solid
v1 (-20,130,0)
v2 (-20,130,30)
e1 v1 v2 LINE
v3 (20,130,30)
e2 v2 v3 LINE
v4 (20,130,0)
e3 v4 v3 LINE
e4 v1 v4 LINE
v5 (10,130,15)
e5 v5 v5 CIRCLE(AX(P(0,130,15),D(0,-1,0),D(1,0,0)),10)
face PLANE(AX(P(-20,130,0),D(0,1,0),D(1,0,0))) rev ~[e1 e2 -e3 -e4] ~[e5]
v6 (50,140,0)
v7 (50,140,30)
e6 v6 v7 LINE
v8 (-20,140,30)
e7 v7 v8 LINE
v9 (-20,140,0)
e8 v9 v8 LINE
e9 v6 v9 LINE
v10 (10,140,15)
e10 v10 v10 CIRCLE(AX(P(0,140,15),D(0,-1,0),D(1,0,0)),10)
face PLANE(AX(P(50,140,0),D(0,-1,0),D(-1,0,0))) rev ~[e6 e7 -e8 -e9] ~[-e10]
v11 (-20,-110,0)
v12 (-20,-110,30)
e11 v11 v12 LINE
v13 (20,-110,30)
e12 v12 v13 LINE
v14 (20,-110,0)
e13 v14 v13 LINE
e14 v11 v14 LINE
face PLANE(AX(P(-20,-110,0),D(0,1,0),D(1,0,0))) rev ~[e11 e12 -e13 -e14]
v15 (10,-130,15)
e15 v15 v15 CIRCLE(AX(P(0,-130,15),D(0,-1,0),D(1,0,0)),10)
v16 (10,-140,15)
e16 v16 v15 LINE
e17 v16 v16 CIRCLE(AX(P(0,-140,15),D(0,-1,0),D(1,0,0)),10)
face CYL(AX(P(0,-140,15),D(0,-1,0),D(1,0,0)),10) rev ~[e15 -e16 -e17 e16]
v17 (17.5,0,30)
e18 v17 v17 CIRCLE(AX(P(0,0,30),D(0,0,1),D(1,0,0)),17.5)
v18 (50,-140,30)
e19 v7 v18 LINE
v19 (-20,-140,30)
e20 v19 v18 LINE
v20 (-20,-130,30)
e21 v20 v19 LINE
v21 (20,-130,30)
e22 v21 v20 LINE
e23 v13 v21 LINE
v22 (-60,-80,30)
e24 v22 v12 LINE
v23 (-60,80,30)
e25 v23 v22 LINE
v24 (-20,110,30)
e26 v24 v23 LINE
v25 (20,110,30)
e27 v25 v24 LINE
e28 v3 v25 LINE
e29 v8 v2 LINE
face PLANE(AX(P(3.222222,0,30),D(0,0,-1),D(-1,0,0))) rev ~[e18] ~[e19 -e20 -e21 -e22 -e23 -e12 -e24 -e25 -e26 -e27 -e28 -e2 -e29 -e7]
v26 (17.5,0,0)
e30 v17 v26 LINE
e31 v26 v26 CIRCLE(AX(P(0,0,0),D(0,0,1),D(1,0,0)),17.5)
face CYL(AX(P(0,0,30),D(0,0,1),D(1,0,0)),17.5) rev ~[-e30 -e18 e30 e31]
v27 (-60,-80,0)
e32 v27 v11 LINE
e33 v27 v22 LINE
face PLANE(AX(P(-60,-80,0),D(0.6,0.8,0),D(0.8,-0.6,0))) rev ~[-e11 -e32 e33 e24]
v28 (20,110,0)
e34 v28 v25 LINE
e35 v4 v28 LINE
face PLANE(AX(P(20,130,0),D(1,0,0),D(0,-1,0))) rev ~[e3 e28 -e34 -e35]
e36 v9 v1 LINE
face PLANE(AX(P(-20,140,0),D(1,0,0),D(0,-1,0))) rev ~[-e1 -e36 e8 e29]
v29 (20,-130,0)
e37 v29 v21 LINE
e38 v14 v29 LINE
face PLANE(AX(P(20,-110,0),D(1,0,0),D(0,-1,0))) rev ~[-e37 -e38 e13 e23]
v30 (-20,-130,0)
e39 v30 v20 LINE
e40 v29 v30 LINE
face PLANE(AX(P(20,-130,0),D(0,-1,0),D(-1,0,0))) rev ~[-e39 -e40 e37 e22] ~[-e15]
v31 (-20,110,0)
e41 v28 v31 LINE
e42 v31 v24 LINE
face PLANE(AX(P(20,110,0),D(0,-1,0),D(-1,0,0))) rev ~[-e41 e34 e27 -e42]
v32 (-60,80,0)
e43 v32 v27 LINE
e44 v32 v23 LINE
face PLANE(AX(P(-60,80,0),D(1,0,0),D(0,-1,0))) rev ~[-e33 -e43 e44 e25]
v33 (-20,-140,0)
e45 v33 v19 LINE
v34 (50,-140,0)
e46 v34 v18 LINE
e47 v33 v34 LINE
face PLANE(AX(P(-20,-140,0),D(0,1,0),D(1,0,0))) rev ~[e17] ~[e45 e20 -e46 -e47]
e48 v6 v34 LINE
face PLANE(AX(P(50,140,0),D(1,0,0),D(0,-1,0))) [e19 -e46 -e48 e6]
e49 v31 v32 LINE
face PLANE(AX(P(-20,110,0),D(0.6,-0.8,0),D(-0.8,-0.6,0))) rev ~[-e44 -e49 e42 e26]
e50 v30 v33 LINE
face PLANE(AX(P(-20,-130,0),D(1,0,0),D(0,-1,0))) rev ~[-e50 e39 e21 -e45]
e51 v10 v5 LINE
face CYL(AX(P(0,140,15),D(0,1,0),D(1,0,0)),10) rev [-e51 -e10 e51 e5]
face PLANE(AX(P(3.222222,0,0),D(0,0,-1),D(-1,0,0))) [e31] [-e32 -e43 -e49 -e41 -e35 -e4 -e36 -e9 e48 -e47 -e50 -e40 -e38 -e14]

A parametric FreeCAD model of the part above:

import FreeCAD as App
import Part
import Sketcher
from FreeCAD import Vector

doc = App.newDocument("Part")
body = doc.addObject("PartDesign::Body", "Body")

sketch1 = body.newObject("Sketcher::SketchObject", "Sketch")
sketch1.AttachmentSupport = (doc.getObject("XY_Plane"), [""])
sketch1.MapMode = "FlatFace"
sketch1.addGeometry(Part.LineSegment(Vector(50, -140, 0), Vector(50, 140, 0)), False)
sketch1.addGeometry(Part.LineSegment(Vector(50, 140, 0), Vector(-20, 140, 0)), False)
sketch1.addGeometry(Part.LineSegment(Vector(-20, 140, 0), Vector(-20, 130, 0)), False)
sketch1.addGeometry(Part.LineSegment(Vector(-20, 130, 0), Vector(20, 130, 0)), False)
sketch1.addGeometry(Part.LineSegment(Vector(20, 130, 0), Vector(20, 110, 0)), False)
sketch1.addGeometry(Part.LineSegment(Vector(20, 110, 0), Vector(-20, 110, 0)), False)
sketch1.addGeometry(Part.LineSegment(Vector(-20, 110, 0), Vector(-60, 80, 0)), False)
sketch1.addGeometry(Part.LineSegment(Vector(-60, 80, 0), Vector(-60, -80, 0)), False)
sketch1.addGeometry(Part.LineSegment(Vector(-60, -80, 0), Vector(-20, -110, 0)), False)
sketch1.addGeometry(Part.LineSegment(Vector(-20, -110, 0), Vector(20, -110, 0)), False)
sketch1.addGeometry(Part.LineSegment(Vector(20, -110, 0), Vector(20, -130, 0)), False)
sketch1.addGeometry(Part.LineSegment(Vector(20, -130, 0), Vector(-20, -130, 0)), False)
sketch1.addGeometry(Part.LineSegment(Vector(-20, -130, 0), Vector(-20, -140, 0)), False)
sketch1.addGeometry(Part.LineSegment(Vector(-20, -140, 0), Vector(50, -140, 0)), False)
sketch1.addConstraint(Sketcher.Constraint("Coincident", 0, 2, 1, 1))
sketch1.addConstraint(Sketcher.Constraint("Coincident", 1, 2, 2, 1))
sketch1.addConstraint(Sketcher.Constraint("Coincident", 2, 2, 3, 1))
sketch1.addConstraint(Sketcher.Constraint("Coincident", 3, 2, 4, 1))
sketch1.addConstraint(Sketcher.Constraint("Coincident", 4, 2, 5, 1))
sketch1.addConstraint(Sketcher.Constraint("Coincident", 5, 2, 6, 1))
sketch1.addConstraint(Sketcher.Constraint("Coincident", 6, 2, 7, 1))
sketch1.addConstraint(Sketcher.Constraint("Coincident", 7, 2, 8, 1))
sketch1.addConstraint(Sketcher.Constraint("Coincident", 8, 2, 9, 1))
sketch1.addConstraint(Sketcher.Constraint("Coincident", 9, 2, 10, 1))
sketch1.addConstraint(Sketcher.Constraint("Coincident", 10, 2, 11, 1))
sketch1.addConstraint(Sketcher.Constraint("Coincident", 11, 2, 12, 1))
sketch1.addConstraint(Sketcher.Constraint("Coincident", 12, 2, 13, 1))
sketch1.addConstraint(Sketcher.Constraint("Coincident", 13, 2, 0, 1))
sketch1.addConstraint(Sketcher.Constraint("Vertical", 0))
sketch1.addConstraint(Sketcher.Constraint("Horizontal", 1))
sketch1.addConstraint(Sketcher.Constraint("Vertical", 2))
sketch1.addConstraint(Sketcher.Constraint("Horizontal", 3))
sketch1.addConstraint(Sketcher.Constraint("Vertical", 4))
sketch1.addConstraint(Sketcher.Constraint("Horizontal", 5))
sketch1.addConstraint(Sketcher.Constraint("Vertical", 7))
sketch1.addConstraint(Sketcher.Constraint("Horizontal", 9))
sketch1.addConstraint(Sketcher.Constraint("Vertical", 10))
sketch1.addConstraint(Sketcher.Constraint("Horizontal", 11))
sketch1.addConstraint(Sketcher.Constraint("Vertical", 12))
sketch1.addConstraint(Sketcher.Constraint("Horizontal", 13))
sketch1.addConstraint(Sketcher.Constraint("Symmetric", 4, 2, 8, 2, -1, 1))
sketch1.addConstraint(Sketcher.Constraint("Symmetric", 2, 2, 10, 2, -1, 1))
sketch1.addConstraint(Sketcher.Constraint("Symmetric", 1, 2, 12, 2, -1))
sketch1.addConstraint(Sketcher.Constraint("Vertical", 2, 2, 5, 2))
sketch1.addConstraint(Sketcher.Constraint("Vertical", 5, 2, 8, 2))
sketch1.addConstraint(Sketcher.Constraint("Equal", 6, 8))
sketch1.addConstraint(Sketcher.Constraint("DistanceY", 4, 2, 4, 1, 20.0))
sketch1.addConstraint(Sketcher.Constraint("Distance", 6, 50.0))
sketch1.addConstraint(Sketcher.Constraint("DistanceX", -1, 1, 0, 2, 50.0))
sketch1.addConstraint(Sketcher.Constraint("DistanceX", 1, 2, -1, 1, 20.0))
sketch1.addConstraint(Sketcher.Constraint("DistanceX", 6, 2, -1, 1, 60.0))
sketch1.addConstraint(Sketcher.Constraint("DistanceY", 6, 2, 1, 2, 60.0))
sketch1.addConstraint(Sketcher.Constraint("DistanceY", 0, 1, 0, 2, 280.0))
pad1 = body.newObject("PartDesign::Pad", "Pad")
pad1.Profile = sketch1
pad1.Length = 30

sketch2 = body.newObject("Sketcher::SketchObject", "Sketch001")
sketch2.AttachmentSupport = (doc.getObject("XZ_Plane"), [""])
sketch2.MapMode = "FlatFace"
sketch2.AttachmentOffset = App.Placement(Vector(0, 0, 140), App.Rotation())
sketch2.addGeometry(Part.Circle(Vector(0, 15, 0), Vector(0, 0, 1), 10), False)
sketch2.addConstraint(Sketcher.Constraint("PointOnObject", 0, 3, -2))
sketch2.addConstraint(Sketcher.Constraint("Diameter", 0, 20.0))
sketch2.addConstraint(Sketcher.Constraint("DistanceY", -1, 1, 0, 3, 15.0))
pocket1 = body.newObject("PartDesign::Pocket", "Pocket")
pocket1.Profile = sketch2
pocket1.Type = "UpToFirst"
doc.recompute()

mirrored = body.newObject("PartDesign::Mirrored", "Mirrored")
mirrored.Originals = [pocket1]
mirrored.MirrorPlane = (doc.getObject("XZ_Plane"), [""])
body.Tip = mirrored

sketch3 = body.newObject("Sketcher::SketchObject", "Sketch002")
sketch3.AttachmentSupport = (doc.getObject("XY_Plane"), [""])
sketch3.MapMode = "FlatFace"
sketch3.AttachmentOffset = App.Placement(Vector(0, 0, 30), App.Rotation())
sketch3.addGeometry(Part.Circle(Vector(0, 0, 0), Vector(0, 0, 1), 18), False)
sketch3.addConstraint(Sketcher.Constraint("Coincident", 0, 3, -1, 1))
sketch3.addConstraint(Sketcher.Constraint("Diameter", 0, 35.0))
pocket2 = body.newObject("PartDesign::Pocket", "Pocket001")
pocket2.Profile = sketch3
pocket2.Type = "UpToFirst"

doc.recompute()
